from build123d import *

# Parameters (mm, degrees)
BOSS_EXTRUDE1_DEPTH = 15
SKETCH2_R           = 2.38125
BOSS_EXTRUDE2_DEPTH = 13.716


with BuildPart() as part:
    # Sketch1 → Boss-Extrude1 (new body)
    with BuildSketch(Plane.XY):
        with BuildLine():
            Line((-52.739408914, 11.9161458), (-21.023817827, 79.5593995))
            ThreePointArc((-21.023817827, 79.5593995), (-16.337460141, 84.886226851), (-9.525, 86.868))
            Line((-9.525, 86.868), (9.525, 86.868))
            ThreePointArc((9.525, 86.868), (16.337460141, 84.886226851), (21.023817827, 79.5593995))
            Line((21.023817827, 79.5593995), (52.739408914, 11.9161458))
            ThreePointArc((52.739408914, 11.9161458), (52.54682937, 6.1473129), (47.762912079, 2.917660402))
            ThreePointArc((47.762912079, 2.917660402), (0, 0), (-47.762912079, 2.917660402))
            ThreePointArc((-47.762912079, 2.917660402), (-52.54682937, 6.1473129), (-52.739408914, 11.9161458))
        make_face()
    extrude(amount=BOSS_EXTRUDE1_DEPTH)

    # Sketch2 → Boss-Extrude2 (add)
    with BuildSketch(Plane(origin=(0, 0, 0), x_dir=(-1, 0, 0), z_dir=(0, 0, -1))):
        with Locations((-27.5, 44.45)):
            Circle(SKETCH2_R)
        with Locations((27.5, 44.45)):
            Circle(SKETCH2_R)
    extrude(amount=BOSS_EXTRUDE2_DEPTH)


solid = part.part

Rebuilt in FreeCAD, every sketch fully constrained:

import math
import FreeCAD as App
import Part
import Sketcher

V = App.Vector
Q = App.Units.Quantity

doc = App.newDocument("Part")
params = doc.addObject("Spreadsheet::Sheet", "Params")
for row, (alias, value) in enumerate([
    ("sketch1_radius", "0.5 in"),
    ("sketch1_radius2", "0.25 in"),
    ("sketch1_width", "0.75 in"),
    ("pad1_length", "15 mm"),
    ("sketch2_diameter", "0.1875 in"),
    ("pad2_length", "0.54 in"),
], start=1):
    params.set(f"A{row}", alias)
    params.set(f"B{row}", "=" + value)
    params.setAlias(f"B{row}", alias)

body = doc.addObject("PartDesign::Body", "Body")

sketch1 = doc.addObject("Sketcher::SketchObject", "Sketch")
body.addObject(sketch1)
sketch1.AttachmentSupport = (doc.XY_Plane, [""])
sketch1.MapMode = "FlatFace"
sketch1.addGeometry(Part.LineSegment(V(-21.023818, 79.559399, 0), V(-52.739409, 11.916146, 0)), False)
sketch1.addGeometry(Part.ArcOfCircle(Part.Circle(V(-46.99, 9.220446, 0), V(0, 0, 1), 6.35), math.radians(154.879738), math.radians(263.008711)), False)
sketch1.addGeometry(Part.ArcOfCircle(Part.Circle(V(0, 392.404906, 0), V(0, 0, 1), 392.404906), math.radians(-96.991289), math.radians(-83.008711)), False)
sketch1.addGeometry(Part.ArcOfCircle(Part.Circle(V(46.99, 9.220446, 0), V(0, 0, 1), 6.35), math.radians(-83.008711), math.radians(25.120262)), False)
sketch1.addGeometry(Part.LineSegment(V(52.739409, 11.916146, 0), V(21.023818, 79.559399, 0)), False)
sketch1.addGeometry(Part.ArcOfCircle(Part.Circle(V(9.525, 74.168, 0), V(0, 0, 1), 12.7), math.radians(25.120262), math.radians(90)), False)
sketch1.addGeometry(Part.LineSegment(V(9.525, 86.868, 0), V(-9.525, 86.868, 0)), False)
sketch1.addGeometry(Part.ArcOfCircle(Part.Circle(V(-9.525, 74.168, 0), V(0, 0, 1), 12.7), math.radians(90), math.radians(154.879738)), False)
sketch1.addConstraint(Sketcher.Constraint("Tangent", 0, 2, 1, 1))
sketch1.addConstraint(Sketcher.Constraint("Tangent", 1, 2, 2, 1))
sketch1.addConstraint(Sketcher.Constraint("Tangent", 2, 2, 3, 1))
sketch1.addConstraint(Sketcher.Constraint("Tangent", 3, 2, 4, 1))
sketch1.addConstraint(Sketcher.Constraint("Tangent", 4, 2, 5, 1))
sketch1.addConstraint(Sketcher.Constraint("Tangent", 5, 2, 6, 1))
sketch1.addConstraint(Sketcher.Constraint("Tangent", 6, 2, 7, 1))
sketch1.addConstraint(Sketcher.Constraint("Tangent", 7, 2, 0, 1))
sketch1.addConstraint(Sketcher.Constraint("Horizontal", 6))
sketch1.addConstraint(Sketcher.Constraint("Equal", 1, 3))
sketch1.addConstraint(Sketcher.Constraint("Equal", 5, 7))
sketch1.addConstraint(Sketcher.Constraint("Symmetric", 1, 3, 3, 3, -2))
sketch1.addConstraint(Sketcher.Constraint("Horizontal", 0, 2, 3, 2))
sketch1.addConstraint(Sketcher.Constraint("Radius", 5, Q("0.5 in")))
sketch1.addConstraint(Sketcher.Constraint("Radius", 1, Q("0.25 in")))
sketch1.addConstraint(Sketcher.Constraint("DistanceX", 6, 2, 6, 1, Q("0.75 in")))
sketch1.addConstraint(Sketcher.Constraint("DistanceX", 1, 3, 3, 3, Q("3.7 in")))
sketch1.addConstraint(Sketcher.Constraint("DistanceY", -1, 1, 5, 3, Q("2.92 in")))
sketch1.addConstraint(Sketcher.Constraint("Radius", 2, 392.404906))
sketch1.addConstraint(Sketcher.Constraint("DistanceY", -1, 1, 4, 2, 79.559399))
sketch1.setExpression("Constraints[13]", "Params.sketch1_radius")
sketch1.setExpression("Constraints[14]", "Params.sketch1_radius2")
sketch1.setExpression("Constraints[15]", "Params.sketch1_width")
pad1 = doc.addObject("PartDesign::Pad", "Pad")
body.addObject(pad1)
pad1.Profile = sketch1
pad1.setExpression("Length", "Params.pad1_length")

sketch2 = doc.addObject("Sketcher::SketchObject", "Sketch001")
body.addObject(sketch2)
sketch2.AttachmentSupport = (doc.XY_Plane, [""])
sketch2.MapMode = "FlatFace"
sketch2.addGeometry(Part.Circle(V(27.5, 44.45, 0), V(0, 0, 1), 2.38125), False)
sketch2.addGeometry(Part.Circle(V(-27.5, 44.45, 0), V(0, 0, 1), 2.38125), False)
sketch2.addConstraint(Sketcher.Constraint("Equal", 0, 1))
sketch2.addConstraint(Sketcher.Constraint("Symmetric", 0, 3, 1, 3, -2))
sketch2.addConstraint(Sketcher.Constraint("Diameter", 0, Q("0.1875 in")))
sketch2.addConstraint(Sketcher.Constraint("DistanceY", -1, 1, 0, 3, Q("1.75 in")))
sketch2.addConstraint(Sketcher.Constraint("DistanceX", -1, 1, 0, 3, 27.5))
sketch2.setExpression("Constraints[2]", "Params.sketch2_diameter")
pad2 = doc.addObject("PartDesign::Pad", "Pad001")
body.addObject(pad2)
pad2.Profile = sketch2
pad2.setExpression("Length", "Params.pad2_length")
pad2.Reversed = True

doc.recompute()
